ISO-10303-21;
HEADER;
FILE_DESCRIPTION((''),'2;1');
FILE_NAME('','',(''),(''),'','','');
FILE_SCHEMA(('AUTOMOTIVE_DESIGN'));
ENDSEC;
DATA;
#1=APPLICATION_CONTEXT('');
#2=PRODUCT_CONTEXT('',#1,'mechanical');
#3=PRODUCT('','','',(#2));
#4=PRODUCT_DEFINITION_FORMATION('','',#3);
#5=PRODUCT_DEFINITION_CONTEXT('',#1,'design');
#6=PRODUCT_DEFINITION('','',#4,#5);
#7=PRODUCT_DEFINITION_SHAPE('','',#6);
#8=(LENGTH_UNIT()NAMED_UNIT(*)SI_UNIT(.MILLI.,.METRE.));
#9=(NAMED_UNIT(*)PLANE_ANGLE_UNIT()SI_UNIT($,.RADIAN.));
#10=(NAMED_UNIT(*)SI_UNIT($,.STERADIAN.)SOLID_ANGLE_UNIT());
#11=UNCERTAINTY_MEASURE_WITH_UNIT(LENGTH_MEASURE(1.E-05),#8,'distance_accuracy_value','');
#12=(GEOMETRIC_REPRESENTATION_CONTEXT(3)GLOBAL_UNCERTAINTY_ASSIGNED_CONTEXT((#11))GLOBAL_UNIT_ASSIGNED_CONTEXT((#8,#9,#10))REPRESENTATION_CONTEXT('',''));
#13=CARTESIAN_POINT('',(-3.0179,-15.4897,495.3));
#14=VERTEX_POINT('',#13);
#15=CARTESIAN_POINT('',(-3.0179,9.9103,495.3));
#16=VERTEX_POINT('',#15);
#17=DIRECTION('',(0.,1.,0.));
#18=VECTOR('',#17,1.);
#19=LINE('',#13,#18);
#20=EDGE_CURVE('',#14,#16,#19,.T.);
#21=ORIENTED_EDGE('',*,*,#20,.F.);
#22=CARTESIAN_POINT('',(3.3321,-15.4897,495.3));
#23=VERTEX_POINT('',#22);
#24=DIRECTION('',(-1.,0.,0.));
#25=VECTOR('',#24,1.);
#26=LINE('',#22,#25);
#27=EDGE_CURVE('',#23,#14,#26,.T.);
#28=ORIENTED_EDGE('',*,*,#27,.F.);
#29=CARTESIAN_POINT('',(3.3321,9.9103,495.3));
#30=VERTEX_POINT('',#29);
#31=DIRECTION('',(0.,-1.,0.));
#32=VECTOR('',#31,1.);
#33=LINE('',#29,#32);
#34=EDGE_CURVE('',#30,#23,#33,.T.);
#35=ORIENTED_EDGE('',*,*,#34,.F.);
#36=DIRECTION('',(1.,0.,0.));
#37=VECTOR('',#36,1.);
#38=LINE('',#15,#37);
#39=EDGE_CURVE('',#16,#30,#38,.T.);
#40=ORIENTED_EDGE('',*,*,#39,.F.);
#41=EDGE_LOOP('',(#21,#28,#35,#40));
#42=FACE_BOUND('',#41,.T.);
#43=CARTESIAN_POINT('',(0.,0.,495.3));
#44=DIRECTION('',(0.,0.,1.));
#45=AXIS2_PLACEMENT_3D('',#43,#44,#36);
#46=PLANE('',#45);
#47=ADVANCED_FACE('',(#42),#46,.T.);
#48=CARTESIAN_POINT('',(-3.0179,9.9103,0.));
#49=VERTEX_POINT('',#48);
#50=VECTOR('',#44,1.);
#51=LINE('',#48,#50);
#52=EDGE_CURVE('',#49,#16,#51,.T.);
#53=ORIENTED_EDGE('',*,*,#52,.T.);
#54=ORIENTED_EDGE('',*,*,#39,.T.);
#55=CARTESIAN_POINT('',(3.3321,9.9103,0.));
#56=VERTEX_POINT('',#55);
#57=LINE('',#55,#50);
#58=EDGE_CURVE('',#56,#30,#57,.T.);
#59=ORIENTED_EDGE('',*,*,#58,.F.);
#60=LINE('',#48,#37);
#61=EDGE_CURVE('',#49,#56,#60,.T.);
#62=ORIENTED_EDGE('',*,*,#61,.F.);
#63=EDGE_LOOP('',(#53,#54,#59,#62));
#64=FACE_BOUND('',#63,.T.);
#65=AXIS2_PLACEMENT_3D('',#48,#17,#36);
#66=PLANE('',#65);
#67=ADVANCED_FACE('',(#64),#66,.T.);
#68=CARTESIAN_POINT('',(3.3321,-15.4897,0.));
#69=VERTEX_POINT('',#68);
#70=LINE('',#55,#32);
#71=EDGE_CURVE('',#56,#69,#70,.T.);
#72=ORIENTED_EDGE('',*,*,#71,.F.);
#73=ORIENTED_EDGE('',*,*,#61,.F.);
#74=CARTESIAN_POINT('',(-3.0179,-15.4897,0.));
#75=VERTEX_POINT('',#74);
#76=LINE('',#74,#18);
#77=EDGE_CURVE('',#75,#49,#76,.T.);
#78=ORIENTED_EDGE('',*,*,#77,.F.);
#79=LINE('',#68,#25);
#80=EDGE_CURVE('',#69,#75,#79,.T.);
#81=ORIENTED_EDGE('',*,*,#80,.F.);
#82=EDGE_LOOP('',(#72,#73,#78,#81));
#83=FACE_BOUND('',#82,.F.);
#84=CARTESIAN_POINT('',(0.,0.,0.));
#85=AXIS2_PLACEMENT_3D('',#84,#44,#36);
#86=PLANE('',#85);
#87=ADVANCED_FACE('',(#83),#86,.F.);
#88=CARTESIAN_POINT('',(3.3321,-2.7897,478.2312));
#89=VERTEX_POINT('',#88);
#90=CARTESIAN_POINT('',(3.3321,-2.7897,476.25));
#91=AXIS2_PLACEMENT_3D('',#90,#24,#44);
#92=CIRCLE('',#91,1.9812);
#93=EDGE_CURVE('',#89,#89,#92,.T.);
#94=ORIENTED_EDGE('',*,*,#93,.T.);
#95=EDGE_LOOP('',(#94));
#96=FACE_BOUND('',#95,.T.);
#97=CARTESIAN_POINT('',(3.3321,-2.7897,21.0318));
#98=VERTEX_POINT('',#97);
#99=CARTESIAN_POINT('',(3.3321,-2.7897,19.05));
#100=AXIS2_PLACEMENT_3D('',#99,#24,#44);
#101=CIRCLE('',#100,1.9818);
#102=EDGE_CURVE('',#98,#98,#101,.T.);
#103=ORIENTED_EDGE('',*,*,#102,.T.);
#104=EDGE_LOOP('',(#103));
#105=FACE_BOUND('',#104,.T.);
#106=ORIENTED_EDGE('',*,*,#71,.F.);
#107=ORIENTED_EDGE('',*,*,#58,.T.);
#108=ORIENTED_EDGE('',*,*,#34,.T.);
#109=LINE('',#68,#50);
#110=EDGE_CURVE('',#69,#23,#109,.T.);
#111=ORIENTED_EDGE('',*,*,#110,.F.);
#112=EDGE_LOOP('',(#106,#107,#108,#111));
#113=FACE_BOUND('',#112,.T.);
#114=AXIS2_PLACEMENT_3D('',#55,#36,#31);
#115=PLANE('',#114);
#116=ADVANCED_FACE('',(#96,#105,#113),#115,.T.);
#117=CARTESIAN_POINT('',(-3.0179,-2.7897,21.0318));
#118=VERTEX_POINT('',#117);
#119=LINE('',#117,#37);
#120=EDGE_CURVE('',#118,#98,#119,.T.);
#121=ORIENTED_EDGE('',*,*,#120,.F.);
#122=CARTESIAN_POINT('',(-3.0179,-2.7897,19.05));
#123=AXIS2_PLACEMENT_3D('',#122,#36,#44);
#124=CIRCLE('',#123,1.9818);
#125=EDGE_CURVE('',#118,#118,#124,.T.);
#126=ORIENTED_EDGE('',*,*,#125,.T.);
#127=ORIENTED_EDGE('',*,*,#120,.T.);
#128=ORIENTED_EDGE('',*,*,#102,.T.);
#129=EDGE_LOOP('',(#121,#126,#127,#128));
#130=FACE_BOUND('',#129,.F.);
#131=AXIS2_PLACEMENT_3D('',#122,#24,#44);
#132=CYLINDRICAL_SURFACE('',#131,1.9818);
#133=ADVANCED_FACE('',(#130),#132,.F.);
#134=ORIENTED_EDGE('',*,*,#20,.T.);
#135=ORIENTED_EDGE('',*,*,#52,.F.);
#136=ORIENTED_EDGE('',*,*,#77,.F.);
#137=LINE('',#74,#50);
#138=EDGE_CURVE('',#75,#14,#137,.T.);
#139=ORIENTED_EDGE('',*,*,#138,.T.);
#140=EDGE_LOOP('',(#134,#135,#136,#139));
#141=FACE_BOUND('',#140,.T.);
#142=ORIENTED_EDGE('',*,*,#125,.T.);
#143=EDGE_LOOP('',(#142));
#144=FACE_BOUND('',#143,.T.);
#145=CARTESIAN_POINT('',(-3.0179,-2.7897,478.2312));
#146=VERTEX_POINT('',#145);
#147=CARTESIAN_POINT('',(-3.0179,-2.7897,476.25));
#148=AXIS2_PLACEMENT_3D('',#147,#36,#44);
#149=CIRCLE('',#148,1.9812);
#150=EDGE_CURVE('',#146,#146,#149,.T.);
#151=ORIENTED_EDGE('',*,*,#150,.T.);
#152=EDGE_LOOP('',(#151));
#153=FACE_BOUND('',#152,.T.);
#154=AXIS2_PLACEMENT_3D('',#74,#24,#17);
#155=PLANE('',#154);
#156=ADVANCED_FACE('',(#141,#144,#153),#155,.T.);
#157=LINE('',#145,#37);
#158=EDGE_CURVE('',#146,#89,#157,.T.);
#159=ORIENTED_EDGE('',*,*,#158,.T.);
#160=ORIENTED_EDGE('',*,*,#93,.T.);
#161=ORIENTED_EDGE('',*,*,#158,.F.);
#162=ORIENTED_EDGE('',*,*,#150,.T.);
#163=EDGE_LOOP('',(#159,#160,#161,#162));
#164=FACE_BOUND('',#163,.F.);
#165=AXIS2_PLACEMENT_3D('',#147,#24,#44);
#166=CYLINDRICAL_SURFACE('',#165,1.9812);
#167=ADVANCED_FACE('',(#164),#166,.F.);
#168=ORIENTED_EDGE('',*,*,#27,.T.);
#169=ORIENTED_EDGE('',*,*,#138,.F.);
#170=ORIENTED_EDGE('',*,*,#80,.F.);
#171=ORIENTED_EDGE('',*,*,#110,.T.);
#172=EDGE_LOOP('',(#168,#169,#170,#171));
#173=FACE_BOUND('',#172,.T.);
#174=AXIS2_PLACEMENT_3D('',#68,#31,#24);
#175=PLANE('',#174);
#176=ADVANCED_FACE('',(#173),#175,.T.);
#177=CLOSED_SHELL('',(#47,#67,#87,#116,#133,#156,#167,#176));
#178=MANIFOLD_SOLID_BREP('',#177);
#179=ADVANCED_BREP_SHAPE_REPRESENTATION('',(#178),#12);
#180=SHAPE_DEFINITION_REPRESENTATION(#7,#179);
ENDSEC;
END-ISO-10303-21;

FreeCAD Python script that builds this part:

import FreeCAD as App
import Part
import Sketcher

V = App.Vector
Q = App.Units.Quantity

doc = App.newDocument("Part")
params = doc.addObject("Spreadsheet::Sheet", "Params")
for row, (alias, value) in enumerate([
    ("sketch1_height", "1 in"),
    ("sketch1_width", "0.25 in"),
    ("pad1_length", "19.5 in"),
    ("sketch2_diameter", "0.156 in"),
    ("pocket1_length", "1 in"),
], start=1):
    params.set(f"A{row}", alias)
    params.set(f"B{row}", "=" + value)
    params.setAlias(f"B{row}", alias)

body = doc.addObject("PartDesign::Body", "Body")

# Sketch on XY plane
sketch1 = body.newObject("Sketcher::SketchObject", "Sketch")
sketch1.AttachmentSupport = (doc.getObject("XY_Plane"), [""])
sketch1.MapMode = "FlatFace"
sketch1.addGeometry([
    Part.LineSegment(V(3, 10, 0), V(-3, 10, 0)),
    Part.LineSegment(V(-3, 10, 0), V(-3, -15, 0)),
    Part.LineSegment(V(-3, -15, 0), V(3, -15, 0)),
    Part.LineSegment(V(3, -15, 0), V(3, 10, 0)),
], False)
sketch1.addConstraint([
    Sketcher.Constraint("Coincident", 0, 2, 1, 1),
    Sketcher.Constraint("Coincident", 1, 2, 2, 1),
    Sketcher.Constraint("Coincident", 2, 2, 3, 1),
    Sketcher.Constraint("Coincident", 3, 2, 0, 1),
    Sketcher.Constraint("Horizontal", 0),
    Sketcher.Constraint("Vertical", 1),
    Sketcher.Constraint("Horizontal", 2),
    Sketcher.Constraint("Vertical", 3),
    Sketcher.Constraint("DistanceY", 1, 2, 1, 1, Q("1 in")),
    Sketcher.Constraint("DistanceX", 0, 2, 0, 1, Q("0.25 in")),
    Sketcher.Constraint("DistanceX", 0, 2, -1, 1, 3.018),
    Sketcher.Constraint("DistanceY", -1, 1, 0, 2, 9.9103),
])
sketch1.setExpression("Constraints[8]", "Params.sketch1_height")
sketch1.setExpression("Constraints[9]", "Params.sketch1_width")
pad1 = body.newObject("PartDesign::Pad", "Pad")
pad1.Profile = sketch1
pad1.setExpression("Length", "Params.pad1_length")

# Sketch on YZ plane
sketch2 = body.newObject("Sketcher::SketchObject", "Sketch001")
sketch2.AttachmentSupport = (doc.getObject("YZ_Plane"), [""])
sketch2.MapMode = "FlatFace"
sketch2.AttachmentOffset = App.Placement(V(0, 0, -3.0179), App.Rotation())
sketch2.addGeometry([
    Part.Circle(V(-2.8, 476.2, 0), V(0, 0, 1), 2),
    Part.Circle(V(-2.8, 19.1, 0), V(0, 0, 1), 2),
], False)
sketch2.addConstraint([
    Sketcher.Constraint("Vertical", 0, 3, 1, 3),
    Sketcher.Constraint("Diameter", 0, Q("0.156 in")),
    Sketcher.Constraint("DistanceY", 1, 3, 0, 3, Q("18 in")),
    Sketcher.Constraint("Diameter", 1, 3.9636),
    Sketcher.Constraint("DistanceY", -1, 1, 0, 3, Q("18.75 in")),
    Sketcher.Constraint("DistanceX", 0, 3, -1, 1, 2.7897),
])
sketch2.setExpression("Constraints[1]", "Params.sketch2_diameter")
pocket1 = body.newObject("PartDesign::Pocket", "Pocket")
pocket1.Profile = sketch2
pocket1.setExpression("Length", "Params.pocket1_length")
pocket1.Reversed = True

doc.recompute()
